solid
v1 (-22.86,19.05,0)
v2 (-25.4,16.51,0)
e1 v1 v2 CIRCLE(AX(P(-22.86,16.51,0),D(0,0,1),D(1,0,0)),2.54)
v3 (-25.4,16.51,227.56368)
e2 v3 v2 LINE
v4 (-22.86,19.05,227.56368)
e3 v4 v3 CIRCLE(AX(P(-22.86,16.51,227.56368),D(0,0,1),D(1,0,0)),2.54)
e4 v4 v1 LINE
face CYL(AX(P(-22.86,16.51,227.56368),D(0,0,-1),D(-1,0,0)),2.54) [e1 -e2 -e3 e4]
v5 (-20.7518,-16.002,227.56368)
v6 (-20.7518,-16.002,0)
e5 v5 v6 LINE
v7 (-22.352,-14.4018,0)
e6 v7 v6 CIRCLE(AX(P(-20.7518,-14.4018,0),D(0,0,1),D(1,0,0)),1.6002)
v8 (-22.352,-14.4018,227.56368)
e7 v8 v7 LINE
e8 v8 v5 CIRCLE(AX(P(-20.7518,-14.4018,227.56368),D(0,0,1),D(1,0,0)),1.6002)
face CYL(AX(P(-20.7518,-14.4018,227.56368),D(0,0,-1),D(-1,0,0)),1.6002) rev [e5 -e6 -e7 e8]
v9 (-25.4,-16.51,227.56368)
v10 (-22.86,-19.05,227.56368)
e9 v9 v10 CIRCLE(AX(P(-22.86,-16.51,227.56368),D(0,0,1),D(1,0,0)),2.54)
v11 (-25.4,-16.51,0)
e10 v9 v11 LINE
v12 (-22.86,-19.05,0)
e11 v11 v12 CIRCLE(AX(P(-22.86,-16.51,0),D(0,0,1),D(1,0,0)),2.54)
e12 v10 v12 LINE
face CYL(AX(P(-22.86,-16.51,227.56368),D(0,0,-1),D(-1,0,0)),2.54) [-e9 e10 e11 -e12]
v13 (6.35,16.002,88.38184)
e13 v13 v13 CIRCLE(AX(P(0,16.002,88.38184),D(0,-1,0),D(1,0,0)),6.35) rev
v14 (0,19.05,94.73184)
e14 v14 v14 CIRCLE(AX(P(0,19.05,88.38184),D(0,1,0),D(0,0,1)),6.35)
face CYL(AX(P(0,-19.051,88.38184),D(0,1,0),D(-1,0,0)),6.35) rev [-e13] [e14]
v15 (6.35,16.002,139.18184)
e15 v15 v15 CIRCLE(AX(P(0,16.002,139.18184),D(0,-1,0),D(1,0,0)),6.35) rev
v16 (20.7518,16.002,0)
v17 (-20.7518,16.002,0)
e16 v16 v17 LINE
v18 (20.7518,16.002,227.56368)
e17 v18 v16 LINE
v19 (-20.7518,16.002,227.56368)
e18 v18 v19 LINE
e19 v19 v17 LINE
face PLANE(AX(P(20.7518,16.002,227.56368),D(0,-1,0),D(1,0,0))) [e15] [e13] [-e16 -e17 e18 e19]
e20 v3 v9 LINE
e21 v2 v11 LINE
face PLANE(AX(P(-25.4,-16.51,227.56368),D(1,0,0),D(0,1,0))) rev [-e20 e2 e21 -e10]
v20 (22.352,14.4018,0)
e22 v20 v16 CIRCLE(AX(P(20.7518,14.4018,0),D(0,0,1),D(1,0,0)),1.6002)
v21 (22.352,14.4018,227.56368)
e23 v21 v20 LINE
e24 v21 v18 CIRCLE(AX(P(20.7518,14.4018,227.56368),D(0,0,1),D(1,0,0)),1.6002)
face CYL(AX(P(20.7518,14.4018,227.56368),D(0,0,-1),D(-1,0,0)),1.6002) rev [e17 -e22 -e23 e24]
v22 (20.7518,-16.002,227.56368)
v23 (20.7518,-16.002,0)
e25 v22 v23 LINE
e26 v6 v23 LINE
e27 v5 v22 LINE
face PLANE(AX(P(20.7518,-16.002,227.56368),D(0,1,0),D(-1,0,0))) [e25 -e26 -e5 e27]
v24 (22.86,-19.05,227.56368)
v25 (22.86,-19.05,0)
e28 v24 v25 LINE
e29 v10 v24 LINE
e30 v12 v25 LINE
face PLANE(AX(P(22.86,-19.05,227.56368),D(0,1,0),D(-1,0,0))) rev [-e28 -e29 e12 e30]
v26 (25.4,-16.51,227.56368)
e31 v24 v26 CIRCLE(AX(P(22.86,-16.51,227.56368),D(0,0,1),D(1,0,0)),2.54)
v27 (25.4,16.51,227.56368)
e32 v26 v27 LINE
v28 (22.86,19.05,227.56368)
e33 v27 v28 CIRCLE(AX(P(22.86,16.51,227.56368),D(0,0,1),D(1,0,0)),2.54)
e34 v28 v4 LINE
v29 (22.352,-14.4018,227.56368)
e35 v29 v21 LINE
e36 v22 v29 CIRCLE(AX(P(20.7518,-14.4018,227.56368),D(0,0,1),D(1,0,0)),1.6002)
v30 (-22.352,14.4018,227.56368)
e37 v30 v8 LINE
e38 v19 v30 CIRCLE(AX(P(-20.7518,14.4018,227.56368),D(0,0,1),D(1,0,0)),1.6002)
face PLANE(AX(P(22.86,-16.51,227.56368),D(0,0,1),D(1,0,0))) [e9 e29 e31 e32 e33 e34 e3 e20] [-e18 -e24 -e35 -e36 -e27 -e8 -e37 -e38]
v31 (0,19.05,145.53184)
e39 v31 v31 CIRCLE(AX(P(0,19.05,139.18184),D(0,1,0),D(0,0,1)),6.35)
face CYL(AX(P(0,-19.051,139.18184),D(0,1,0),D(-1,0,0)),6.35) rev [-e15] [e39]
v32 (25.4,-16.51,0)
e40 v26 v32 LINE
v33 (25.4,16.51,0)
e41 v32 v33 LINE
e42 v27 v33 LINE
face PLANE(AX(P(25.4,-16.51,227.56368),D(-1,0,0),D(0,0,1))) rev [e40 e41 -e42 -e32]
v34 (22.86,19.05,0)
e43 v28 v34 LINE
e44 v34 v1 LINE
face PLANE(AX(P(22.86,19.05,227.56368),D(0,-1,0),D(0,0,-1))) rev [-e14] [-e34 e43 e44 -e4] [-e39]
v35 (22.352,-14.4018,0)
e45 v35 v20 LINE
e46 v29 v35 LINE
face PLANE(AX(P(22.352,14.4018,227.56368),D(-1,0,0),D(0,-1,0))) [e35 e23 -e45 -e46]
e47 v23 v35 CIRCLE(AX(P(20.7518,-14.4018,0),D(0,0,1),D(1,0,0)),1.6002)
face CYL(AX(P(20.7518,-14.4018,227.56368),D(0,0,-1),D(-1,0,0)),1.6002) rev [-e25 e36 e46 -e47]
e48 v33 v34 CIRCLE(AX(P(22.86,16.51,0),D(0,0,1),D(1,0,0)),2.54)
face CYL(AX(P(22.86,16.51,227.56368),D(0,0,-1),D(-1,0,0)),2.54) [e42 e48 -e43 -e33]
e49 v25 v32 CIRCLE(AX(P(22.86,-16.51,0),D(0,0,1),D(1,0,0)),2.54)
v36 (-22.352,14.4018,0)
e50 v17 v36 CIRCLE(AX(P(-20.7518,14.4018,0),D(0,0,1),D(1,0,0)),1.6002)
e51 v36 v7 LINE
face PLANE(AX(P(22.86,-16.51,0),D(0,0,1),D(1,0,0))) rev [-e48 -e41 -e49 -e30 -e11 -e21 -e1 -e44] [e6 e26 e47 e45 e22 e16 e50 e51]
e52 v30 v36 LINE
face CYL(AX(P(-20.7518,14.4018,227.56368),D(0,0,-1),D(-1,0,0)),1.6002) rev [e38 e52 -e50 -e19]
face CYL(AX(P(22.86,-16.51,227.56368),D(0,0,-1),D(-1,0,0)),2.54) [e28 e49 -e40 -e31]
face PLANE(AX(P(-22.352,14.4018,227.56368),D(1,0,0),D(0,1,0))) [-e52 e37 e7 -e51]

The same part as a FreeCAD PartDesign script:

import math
import FreeCAD as App
import Part
import Sketcher
from FreeCAD import Vector
Q = App.Units.Quantity

doc = App.newDocument("Part")
params = doc.addObject("Spreadsheet::Sheet", "Params")
for row, (alias, value) in enumerate([
    ("sketch1_radius", "0.1 in"),
    ("sketch1_width", "1.8 in"),
    ("sketch1_height", "1.3 in"),
    ("sketch1_radius2", "0.063 in"),
    ("sketch1_width2", "1.634 in"),
    ("pad1_length", "8.9592 in"),
    ("sketch2_diameter", "0.5 in"),
    ("pocket1_length", "0.12 in"),
], start=1):
    params.set(f"A{row}", alias)
    params.set(f"B{row}", "=" + value)
    params.setAlias(f"B{row}", alias)

body = doc.addObject("PartDesign::Body", "Body")

sketch1 = body.newObject("Sketcher::SketchObject", "Sketch")
sketch1.AttachmentSupport = (doc.getObject("XY_Plane"), [""])
sketch1.MapMode = "FlatFace"
sketch1.addGeometry([
    Part.LineSegment(Vector(25.4, -16.5, 0), Vector(25.4, 16.5, 0)),
    Part.ArcOfCircle(Part.Circle(Vector(22.9, 16.5, 0), Vector(0, 0, 1), 2.5), math.radians(0), math.radians(90)),
    Part.LineSegment(Vector(22.9, 19.1, 0), Vector(-22.9, 19.1, 0)),
    Part.ArcOfCircle(Part.Circle(Vector(-22.9, 16.5, 0), Vector(0, 0, 1), 2.5), math.radians(90), math.radians(180)),
    Part.LineSegment(Vector(-25.4, 16.5, 0), Vector(-25.4, -16.5, 0)),
    Part.ArcOfCircle(Part.Circle(Vector(-22.9, -16.5, 0), Vector(0, 0, 1), 2.5), math.radians(-180), math.radians(-90)),
    Part.LineSegment(Vector(-22.9, -19.1, 0), Vector(22.9, -19.1, 0)),
    Part.ArcOfCircle(Part.Circle(Vector(22.9, -16.5, 0), Vector(0, 0, 1), 2.5), math.radians(-90), math.radians(0)),
    Part.ArcOfCircle(Part.Circle(Vector(20.8, 14.4, 0), Vector(0, 0, 1), 1.6), math.radians(0), math.radians(90)),
    Part.LineSegment(Vector(22.4, 14.4, 0), Vector(22.4, -14.4, 0)),
    Part.ArcOfCircle(Part.Circle(Vector(20.8, -14.4, 0), Vector(0, 0, 1), 1.6), math.radians(-90), math.radians(0)),
    Part.LineSegment(Vector(20.8, -16, 0), Vector(-20.8, -16, 0)),
    Part.ArcOfCircle(Part.Circle(Vector(-20.8, -14.4, 0), Vector(0, 0, 1), 1.6), math.radians(-180), math.radians(-90)),
    Part.LineSegment(Vector(-22.4, -14.4, 0), Vector(-22.4, 14.4, 0)),
    Part.ArcOfCircle(Part.Circle(Vector(-20.8, 14.4, 0), Vector(0, 0, 1), 1.6), math.radians(90), math.radians(180)),
    Part.LineSegment(Vector(-20.8, 16, 0), Vector(20.8, 16, 0)),
], False)
sketch1.addConstraint([
    Sketcher.Constraint("Tangent", 0, 2, 1, 1),
    Sketcher.Constraint("Tangent", 1, 2, 2, 1),
    Sketcher.Constraint("Tangent", 2, 2, 3, 1),
    Sketcher.Constraint("Tangent", 3, 2, 4, 1),
    Sketcher.Constraint("Tangent", 4, 2, 5, 1),
    Sketcher.Constraint("Tangent", 5, 2, 6, 1),
    Sketcher.Constraint("Tangent", 6, 2, 7, 1),
    Sketcher.Constraint("Tangent", 7, 2, 0, 1),
    Sketcher.Constraint("Tangent", 8, 1, 9, 1),
    Sketcher.Constraint("Tangent", 9, 2, 10, 2),
    Sketcher.Constraint("Tangent", 10, 1, 11, 1),
    Sketcher.Constraint("Tangent", 11, 2, 12, 2),
    Sketcher.Constraint("Tangent", 12, 1, 13, 1),
    Sketcher.Constraint("Tangent", 13, 2, 14, 2),
    Sketcher.Constraint("Tangent", 14, 1, 15, 1),
    Sketcher.Constraint("Tangent", 15, 2, 8, 2),
    Sketcher.Constraint("Vertical", 0),
    Sketcher.Constraint("Horizontal", 2),
    Sketcher.Constraint("Vertical", 4),
    Sketcher.Constraint("Horizontal", 6),
    Sketcher.Constraint("Vertical", 9),
    Sketcher.Constraint("Horizontal", 11),
    Sketcher.Constraint("Vertical", 13),
    Sketcher.Constraint("Horizontal", 15),
    Sketcher.Constraint("Equal", 1, 3),
    Sketcher.Constraint("Equal", 3, 5),
    Sketcher.Constraint("Equal", 5, 7),
    Sketcher.Constraint("Equal", 8, 10),
    Sketcher.Constraint("Equal", 10, 12),
    Sketcher.Constraint("Equal", 12, 14),
    Sketcher.Constraint("Symmetric", 1, 3, 5, 3, -1, 1),
    Sketcher.Constraint("Symmetric", 8, 3, 12, 3, -1, 1),
    Sketcher.Constraint("Radius", 1, Q("0.1 in")),
    Sketcher.Constraint("DistanceX", 2, 2, 2, 1, Q("1.8 in")),
    Sketcher.Constraint("DistanceY", 0, 1, 0, 2, Q("1.3 in")),
    Sketcher.Constraint("Radius", 8, Q("0.063 in")),
    Sketcher.Constraint("DistanceX", 11, 2, 11, 1, Q("1.634 in")),
    Sketcher.Constraint("DistanceY", 9, 2, 9, 1, Q("1.134 in")),
])
sketch1.setExpression("Constraints[32]", "Params.sketch1_radius")
sketch1.setExpression("Constraints[33]", "Params.sketch1_width")
sketch1.setExpression("Constraints[34]", "Params.sketch1_height")
sketch1.setExpression("Constraints[35]", "Params.sketch1_radius2")
sketch1.setExpression("Constraints[36]", "Params.sketch1_width2")
pad1 = body.newObject("PartDesign::Pad", "Pad")
pad1.Profile = sketch1
pad1.setExpression("Length", "Params.pad1_length")

sketch2 = body.newObject("Sketcher::SketchObject", "Sketch001")
sketch2.AttachmentSupport = (doc.getObject("XZ_Plane"), [""])
sketch2.MapMode = "FlatFace"
sketch2.AttachmentOffset = App.Placement(Vector(0, 0, -0.75 * 25.4), App.Rotation())
sketch2.addGeometry([
    Part.Circle(Vector(0, 139, 0), Vector(0, 0, 1), 6),
    Part.Circle(Vector(0, 88, 0), Vector(0, 0, 1), 6),
], False)
sketch2.addConstraint([
    Sketcher.Constraint("Equal", 0, 1),
    Sketcher.Constraint("PointOnObject", 0, 3, -2),
    Sketcher.Constraint("PointOnObject", 1, 3, -2),
    Sketcher.Constraint("Diameter", 0, Q("0.5 in")),
    Sketcher.Constraint("DistanceY", 1, 3, 0, 3, Q("2 in")),
    Sketcher.Constraint("DistanceY", -1, 1, 0, 3, Q("5.4796 in")),
])
sketch2.setExpression("Constraints[3]", "Params.sketch2_diameter")
pocket1 = body.newObject("PartDesign::Pocket", "Pocket")
pocket1.Profile = sketch2
pocket1.setExpression("Length", "Params.pocket1_length")
pocket1.Reversed = True

doc.recompute()
